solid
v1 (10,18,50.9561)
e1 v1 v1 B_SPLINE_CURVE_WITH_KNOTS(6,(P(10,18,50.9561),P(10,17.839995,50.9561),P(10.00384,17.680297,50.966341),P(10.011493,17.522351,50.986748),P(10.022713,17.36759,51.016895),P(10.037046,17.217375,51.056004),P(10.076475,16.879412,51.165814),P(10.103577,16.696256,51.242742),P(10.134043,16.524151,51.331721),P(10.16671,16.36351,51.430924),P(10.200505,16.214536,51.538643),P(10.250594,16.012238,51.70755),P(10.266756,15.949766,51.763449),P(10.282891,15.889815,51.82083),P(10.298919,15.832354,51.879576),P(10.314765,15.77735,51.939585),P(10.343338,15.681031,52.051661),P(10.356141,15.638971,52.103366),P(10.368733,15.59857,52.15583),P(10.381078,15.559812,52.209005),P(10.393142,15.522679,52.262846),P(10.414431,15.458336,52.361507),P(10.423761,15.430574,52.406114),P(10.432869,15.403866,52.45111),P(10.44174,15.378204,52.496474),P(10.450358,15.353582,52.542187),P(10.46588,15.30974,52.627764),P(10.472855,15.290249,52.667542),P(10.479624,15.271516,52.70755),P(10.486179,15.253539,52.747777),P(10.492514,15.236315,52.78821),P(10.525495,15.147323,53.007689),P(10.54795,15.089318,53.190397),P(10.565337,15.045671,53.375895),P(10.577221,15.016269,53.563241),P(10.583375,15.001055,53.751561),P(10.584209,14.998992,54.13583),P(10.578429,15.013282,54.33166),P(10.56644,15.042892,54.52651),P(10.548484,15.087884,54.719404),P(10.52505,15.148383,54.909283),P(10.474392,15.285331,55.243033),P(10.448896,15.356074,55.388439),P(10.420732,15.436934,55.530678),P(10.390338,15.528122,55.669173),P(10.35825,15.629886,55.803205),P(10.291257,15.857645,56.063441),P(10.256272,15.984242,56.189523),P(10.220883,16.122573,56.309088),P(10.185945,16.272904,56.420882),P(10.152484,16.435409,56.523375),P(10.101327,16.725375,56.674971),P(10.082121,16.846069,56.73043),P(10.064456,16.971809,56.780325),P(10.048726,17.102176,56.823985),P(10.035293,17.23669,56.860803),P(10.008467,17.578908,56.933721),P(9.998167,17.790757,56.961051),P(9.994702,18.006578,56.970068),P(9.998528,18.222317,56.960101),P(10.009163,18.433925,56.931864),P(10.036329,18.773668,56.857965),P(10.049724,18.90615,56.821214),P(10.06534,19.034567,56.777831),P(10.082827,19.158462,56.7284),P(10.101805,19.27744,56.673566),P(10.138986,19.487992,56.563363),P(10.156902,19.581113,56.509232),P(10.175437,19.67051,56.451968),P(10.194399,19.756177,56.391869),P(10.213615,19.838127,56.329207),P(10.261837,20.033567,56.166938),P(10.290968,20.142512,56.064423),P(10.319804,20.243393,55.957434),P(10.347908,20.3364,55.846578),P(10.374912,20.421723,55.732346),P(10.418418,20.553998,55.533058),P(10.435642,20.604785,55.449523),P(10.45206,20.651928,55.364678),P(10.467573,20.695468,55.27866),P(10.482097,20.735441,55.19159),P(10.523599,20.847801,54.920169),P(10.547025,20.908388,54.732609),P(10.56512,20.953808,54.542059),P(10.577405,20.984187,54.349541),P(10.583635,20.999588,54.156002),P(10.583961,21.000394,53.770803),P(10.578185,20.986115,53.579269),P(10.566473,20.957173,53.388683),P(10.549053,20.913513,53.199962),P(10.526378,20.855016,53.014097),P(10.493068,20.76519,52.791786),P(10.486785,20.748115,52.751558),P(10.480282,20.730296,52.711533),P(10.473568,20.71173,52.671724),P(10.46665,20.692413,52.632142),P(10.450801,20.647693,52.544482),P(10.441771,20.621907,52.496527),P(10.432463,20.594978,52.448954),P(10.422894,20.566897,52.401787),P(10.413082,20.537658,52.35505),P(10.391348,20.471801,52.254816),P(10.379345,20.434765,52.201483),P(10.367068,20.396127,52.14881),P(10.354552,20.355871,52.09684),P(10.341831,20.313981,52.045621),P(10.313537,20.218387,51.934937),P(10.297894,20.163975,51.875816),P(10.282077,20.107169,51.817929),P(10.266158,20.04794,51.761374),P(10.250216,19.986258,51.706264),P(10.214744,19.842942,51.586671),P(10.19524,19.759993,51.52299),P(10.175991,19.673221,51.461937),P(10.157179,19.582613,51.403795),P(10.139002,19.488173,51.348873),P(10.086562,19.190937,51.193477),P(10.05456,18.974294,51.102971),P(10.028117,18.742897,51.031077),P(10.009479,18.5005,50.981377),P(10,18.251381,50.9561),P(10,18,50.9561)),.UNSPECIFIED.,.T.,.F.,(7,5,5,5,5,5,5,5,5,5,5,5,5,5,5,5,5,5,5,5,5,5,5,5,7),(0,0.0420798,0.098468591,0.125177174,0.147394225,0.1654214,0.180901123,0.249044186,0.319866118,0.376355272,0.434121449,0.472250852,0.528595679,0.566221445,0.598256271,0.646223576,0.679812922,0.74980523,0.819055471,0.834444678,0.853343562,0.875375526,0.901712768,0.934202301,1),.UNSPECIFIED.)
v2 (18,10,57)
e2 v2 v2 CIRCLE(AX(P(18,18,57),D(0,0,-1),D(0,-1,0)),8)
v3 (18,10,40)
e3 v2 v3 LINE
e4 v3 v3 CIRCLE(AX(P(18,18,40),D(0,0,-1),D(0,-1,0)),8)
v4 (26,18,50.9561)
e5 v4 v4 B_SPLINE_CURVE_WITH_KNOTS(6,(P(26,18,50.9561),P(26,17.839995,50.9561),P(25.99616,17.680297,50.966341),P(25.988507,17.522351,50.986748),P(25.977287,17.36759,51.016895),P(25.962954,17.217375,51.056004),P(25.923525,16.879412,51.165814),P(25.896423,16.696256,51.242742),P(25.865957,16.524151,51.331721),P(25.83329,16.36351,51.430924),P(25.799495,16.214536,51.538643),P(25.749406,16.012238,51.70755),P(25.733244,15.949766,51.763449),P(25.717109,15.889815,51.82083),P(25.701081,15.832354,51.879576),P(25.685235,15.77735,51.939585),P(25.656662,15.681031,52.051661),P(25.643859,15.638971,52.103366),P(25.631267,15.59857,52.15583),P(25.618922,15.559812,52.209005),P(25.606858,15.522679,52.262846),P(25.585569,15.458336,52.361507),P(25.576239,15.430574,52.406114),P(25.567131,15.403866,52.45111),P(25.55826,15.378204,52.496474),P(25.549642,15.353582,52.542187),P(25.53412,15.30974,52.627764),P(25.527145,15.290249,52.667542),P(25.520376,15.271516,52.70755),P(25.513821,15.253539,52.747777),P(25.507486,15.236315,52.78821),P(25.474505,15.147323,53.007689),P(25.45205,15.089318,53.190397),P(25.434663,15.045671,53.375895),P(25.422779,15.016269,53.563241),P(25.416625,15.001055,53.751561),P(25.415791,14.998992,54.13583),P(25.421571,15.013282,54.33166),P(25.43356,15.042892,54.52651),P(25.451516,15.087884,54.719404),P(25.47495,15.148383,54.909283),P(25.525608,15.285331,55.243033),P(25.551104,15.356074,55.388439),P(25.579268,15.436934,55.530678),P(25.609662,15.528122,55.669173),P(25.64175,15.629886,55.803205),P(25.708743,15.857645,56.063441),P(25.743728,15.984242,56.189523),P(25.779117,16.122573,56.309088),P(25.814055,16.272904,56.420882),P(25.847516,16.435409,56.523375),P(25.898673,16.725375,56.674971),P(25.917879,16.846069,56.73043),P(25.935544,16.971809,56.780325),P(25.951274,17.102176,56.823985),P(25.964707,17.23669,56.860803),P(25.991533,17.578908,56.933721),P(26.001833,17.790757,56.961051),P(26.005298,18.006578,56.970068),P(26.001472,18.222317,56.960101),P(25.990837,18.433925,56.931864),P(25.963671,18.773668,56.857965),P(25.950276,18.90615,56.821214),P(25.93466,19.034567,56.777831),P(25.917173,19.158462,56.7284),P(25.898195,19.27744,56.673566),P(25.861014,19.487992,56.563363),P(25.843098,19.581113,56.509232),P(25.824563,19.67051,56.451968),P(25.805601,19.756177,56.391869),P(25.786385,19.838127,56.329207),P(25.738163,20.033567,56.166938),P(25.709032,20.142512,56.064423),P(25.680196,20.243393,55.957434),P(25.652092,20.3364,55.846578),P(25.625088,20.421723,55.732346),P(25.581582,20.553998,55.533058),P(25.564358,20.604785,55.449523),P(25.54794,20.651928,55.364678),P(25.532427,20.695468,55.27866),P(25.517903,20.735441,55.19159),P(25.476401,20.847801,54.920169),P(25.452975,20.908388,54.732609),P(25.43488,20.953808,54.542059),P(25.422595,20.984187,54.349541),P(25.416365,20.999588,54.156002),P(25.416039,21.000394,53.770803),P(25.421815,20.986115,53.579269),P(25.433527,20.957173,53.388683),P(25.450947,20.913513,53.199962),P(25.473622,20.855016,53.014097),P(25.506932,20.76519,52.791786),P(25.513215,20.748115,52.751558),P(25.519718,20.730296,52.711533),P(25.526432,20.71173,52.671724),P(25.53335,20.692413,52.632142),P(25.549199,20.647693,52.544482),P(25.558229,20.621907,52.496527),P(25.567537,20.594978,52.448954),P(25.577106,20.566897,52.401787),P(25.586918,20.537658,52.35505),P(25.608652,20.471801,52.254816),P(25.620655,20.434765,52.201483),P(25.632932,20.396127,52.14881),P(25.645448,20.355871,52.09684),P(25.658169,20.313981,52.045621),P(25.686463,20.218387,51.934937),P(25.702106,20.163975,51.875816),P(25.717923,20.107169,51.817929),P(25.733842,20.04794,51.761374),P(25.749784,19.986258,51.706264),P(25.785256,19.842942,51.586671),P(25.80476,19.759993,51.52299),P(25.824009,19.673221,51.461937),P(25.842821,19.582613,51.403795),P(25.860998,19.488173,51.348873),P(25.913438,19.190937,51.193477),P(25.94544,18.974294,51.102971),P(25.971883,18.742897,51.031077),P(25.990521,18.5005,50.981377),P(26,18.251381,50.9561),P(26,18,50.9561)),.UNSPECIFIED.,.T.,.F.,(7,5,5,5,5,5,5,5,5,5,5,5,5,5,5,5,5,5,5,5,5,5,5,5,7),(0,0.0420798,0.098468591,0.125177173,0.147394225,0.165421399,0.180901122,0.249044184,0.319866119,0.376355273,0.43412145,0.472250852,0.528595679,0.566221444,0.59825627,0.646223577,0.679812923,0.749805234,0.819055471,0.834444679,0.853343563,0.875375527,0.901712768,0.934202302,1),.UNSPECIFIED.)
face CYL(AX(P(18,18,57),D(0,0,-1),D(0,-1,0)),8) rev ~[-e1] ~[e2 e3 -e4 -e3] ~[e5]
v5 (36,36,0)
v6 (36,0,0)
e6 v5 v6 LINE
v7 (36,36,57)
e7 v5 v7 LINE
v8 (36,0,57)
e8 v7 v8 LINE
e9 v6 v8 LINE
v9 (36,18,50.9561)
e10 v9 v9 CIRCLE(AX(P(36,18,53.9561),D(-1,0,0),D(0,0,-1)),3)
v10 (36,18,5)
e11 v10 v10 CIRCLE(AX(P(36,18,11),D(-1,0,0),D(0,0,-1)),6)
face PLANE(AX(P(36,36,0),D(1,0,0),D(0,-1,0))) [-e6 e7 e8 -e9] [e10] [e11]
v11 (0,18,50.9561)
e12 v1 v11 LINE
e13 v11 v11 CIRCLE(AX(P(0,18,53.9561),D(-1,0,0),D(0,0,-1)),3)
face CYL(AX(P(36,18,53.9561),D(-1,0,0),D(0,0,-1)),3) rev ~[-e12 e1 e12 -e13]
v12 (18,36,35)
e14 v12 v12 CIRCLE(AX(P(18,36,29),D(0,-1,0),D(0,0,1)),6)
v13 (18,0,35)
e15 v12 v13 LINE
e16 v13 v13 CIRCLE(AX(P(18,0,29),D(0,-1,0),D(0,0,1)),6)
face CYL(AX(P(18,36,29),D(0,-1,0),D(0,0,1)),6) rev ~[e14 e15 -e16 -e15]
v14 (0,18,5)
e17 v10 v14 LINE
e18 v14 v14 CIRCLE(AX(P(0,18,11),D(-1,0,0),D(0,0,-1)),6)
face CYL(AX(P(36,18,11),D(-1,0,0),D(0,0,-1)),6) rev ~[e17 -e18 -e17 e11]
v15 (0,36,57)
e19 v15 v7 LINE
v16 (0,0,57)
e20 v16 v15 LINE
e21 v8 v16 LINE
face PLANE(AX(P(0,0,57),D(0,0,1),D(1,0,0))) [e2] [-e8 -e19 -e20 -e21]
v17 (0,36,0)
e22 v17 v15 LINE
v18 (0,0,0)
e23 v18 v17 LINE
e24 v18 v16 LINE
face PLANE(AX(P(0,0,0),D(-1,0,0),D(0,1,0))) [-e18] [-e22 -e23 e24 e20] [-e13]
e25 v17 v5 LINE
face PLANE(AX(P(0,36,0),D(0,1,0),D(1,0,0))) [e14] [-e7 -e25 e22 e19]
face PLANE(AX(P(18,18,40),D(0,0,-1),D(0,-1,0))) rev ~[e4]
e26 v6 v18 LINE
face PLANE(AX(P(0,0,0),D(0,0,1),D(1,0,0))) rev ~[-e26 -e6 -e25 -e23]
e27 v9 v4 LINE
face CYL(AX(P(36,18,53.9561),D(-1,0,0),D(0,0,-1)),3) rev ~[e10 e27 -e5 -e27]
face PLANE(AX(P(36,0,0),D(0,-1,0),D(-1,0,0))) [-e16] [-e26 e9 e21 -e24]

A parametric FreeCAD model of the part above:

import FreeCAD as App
import Part
import Sketcher

V = App.Vector
Q = App.Units.Quantity


def add_polygon(sketch, points):
    """Adds a closed chain of lines whose ends are joined by coincident constraints."""
    first, n = sketch.GeometryCount, len(points)
    for a, b in zip(points, points[1:] + points[:1]):
        sketch.addGeometry(Part.LineSegment(App.Vector(*a, 0), App.Vector(*b, 0)), False)
    for i in range(n):
        sketch.addConstraint(Sketcher.Constraint("Coincident", first + i, 2, first + (i + 1) % n, 1))

doc = App.newDocument("Part")
params = doc.addObject("Spreadsheet::Sheet", "Params")
for row, (alias, value) in enumerate([
    ("sketch1_width", "36 mm"),
    ("pad1_length", "57 mm"),
    ("sketch2_diameter", "16 mm"),
    ("hole_diameter", "16 mm"),
    ("hole_depth", "17 mm"),
    ("sketch3_diameter", "12 mm"),
    ("hole2_diameter", "12 mm"),
    ("sketch4_diameter", "12 mm"),
    ("hole3_diameter", "12 mm"),
    ("sketch5_diameter", "6 mm"),
    ("hole4_diameter", "6 mm"),
], start=1):
    params.set(f"A{row}", alias)
    params.set(f"B{row}", "=" + value)
    params.setAlias(f"B{row}", alias)

body = doc.addObject("PartDesign::Body", "Body")

# Sketch on XY plane
sketch1 = doc.addObject("Sketcher::SketchObject", "Sketch")
body.addObject(sketch1)
sketch1.AttachmentSupport = (doc.XY_Plane, [""])
sketch1.MapMode = "FlatFace"
add_polygon(sketch1, [(0, 36), (0, 0), (36, 0), (36, 36)])  # lines 0-3
sketch1.addConstraint([
    Sketcher.Constraint("Vertical", 0),
    Sketcher.Constraint("Horizontal", 1),
    Sketcher.Constraint("Vertical", 2),
    Sketcher.Constraint("Horizontal", 3),
    Sketcher.Constraint("Coincident", 0, 2, -1, 1),
    Sketcher.Constraint("Equal", 3, 0),
    Sketcher.Constraint("DistanceX", 1, 1, 1, 2, Q("36 mm")),
])
sketch1.setExpression("Constraints[10]", "Params.sketch1_width")
pad1 = doc.addObject("PartDesign::Pad", "Pad")
body.addObject(pad1)
pad1.Profile = sketch1
pad1.setExpression("Length", "Params.pad1_length")

# Sketch on XY plane
sketch2 = doc.addObject("Sketcher::SketchObject", "Sketch001")
body.addObject(sketch2)
sketch2.AttachmentSupport = (doc.XY_Plane, [""])
sketch2.MapMode = "FlatFace"
sketch2.AttachmentOffset = App.Placement(V(0, 0, 57), App.Rotation())
sketch2.addGeometry(Part.Circle(V(18, 18, 0), V(0, 0, 1), 8), False)
sketch2.addConstraint([
    Sketcher.Constraint("Diameter", 0, Q("16 mm")),
    Sketcher.Constraint("DistanceX", -1, 1, 0, 3, Q("18 mm")),
    Sketcher.Constraint("DistanceY", -1, 1, 0, 3, Q("18 mm")),
])
sketch2.setExpression("Constraints[0]", "Params.sketch2_diameter")
doc.recompute()
hole = doc.addObject("PartDesign::Hole", "Hole")
body.addObject(hole)
hole.Profile = sketch2
hole.ThreadType = "None"
hole.setExpression("Diameter", "Params.hole_diameter")
hole.DepthType = "Dimension"
hole.setExpression("Depth", "Params.hole_depth")
hole.DrillPoint = "Flat"

# Sketch on YZ plane
sketch3 = doc.addObject("Sketcher::SketchObject", "Sketch002")
body.addObject(sketch3)
sketch3.AttachmentSupport = (doc.YZ_Plane, [""])
sketch3.MapMode = "FlatFace"
sketch3.AttachmentOffset = App.Placement(V(0, 0, 36), App.Rotation())
sketch3.addGeometry(Part.Circle(V(18, 11, 0), V(0, 0, 1), 6), False)
sketch3.addConstraint([
    Sketcher.Constraint("Diameter", 0, Q("12 mm")),
    Sketcher.Constraint("DistanceX", -1, 1, 0, 3, Q("18 mm")),
    Sketcher.Constraint("DistanceY", -1, 1, 0, 3, Q("11 mm")),
])
sketch3.setExpression("Constraints[0]", "Params.sketch3_diameter")
doc.recompute()
hole2 = doc.addObject("PartDesign::Hole", "Hole001")
body.addObject(hole2)
hole2.Profile = sketch3
hole2.ThreadType = "None"
hole2.setExpression("Diameter", "Params.hole2_diameter")
hole2.DepthType = "ThroughAll"

# Sketch on XZ plane
sketch4 = doc.addObject("Sketcher::SketchObject", "Sketch003")
body.addObject(sketch4)
sketch4.AttachmentSupport = (doc.XZ_Plane, [""])
sketch4.MapMode = "FlatFace"
sketch4.AttachmentOffset = App.Placement(V(0, 0, -36), App.Rotation())
sketch4.addGeometry(Part.Circle(V(18, 29, 0), V(0, 0, 1), 6), False)
sketch4.addConstraint([
    Sketcher.Constraint("Diameter", 0, Q("12 mm")),
    Sketcher.Constraint("DistanceX", -1, 1, 0, 3, Q("18 mm")),
    Sketcher.Constraint("DistanceY", -1, 1, 0, 3, Q("29 mm")),
])
sketch4.setExpression("Constraints[0]", "Params.sketch4_diameter")
doc.recompute()
hole3 = doc.addObject("PartDesign::Hole", "Hole002")
body.addObject(hole3)
hole3.Profile = sketch4
hole3.ThreadType = "None"
hole3.setExpression("Diameter", "Params.hole3_diameter")
hole3.DepthType = "ThroughAll"
hole3.Reversed = True

# Sketch on YZ plane
sketch5 = doc.addObject("Sketcher::SketchObject", "Sketch004")
body.addObject(sketch5)
sketch5.AttachmentSupport = (doc.YZ_Plane, [""])
sketch5.MapMode = "FlatFace"
sketch5.AttachmentOffset = App.Placement(V(0, 0, 36), App.Rotation())
sketch5.addGeometry(Part.Circle(V(18, 54, 0), V(0, 0, 1), 3), False)
sketch5.addConstraint([
    Sketcher.Constraint("Diameter", 0, Q("6 mm")),
    Sketcher.Constraint("DistanceX", -1, 1, 0, 3, Q("18 mm")),
    Sketcher.Constraint("DistanceY", -1, 1, 0, 3, Q("53.956 mm")),
])
sketch5.setExpression("Constraints[0]", "Params.sketch5_diameter")
doc.recompute()
hole4 = doc.addObject("PartDesign::Hole", "Hole003")
body.addObject(hole4)
hole4.Profile = sketch5
hole4.ThreadType = "None"
hole4.setExpression("Diameter", "Params.hole4_diameter")
hole4.DepthType = "ThroughAll"

doc.recompute()
